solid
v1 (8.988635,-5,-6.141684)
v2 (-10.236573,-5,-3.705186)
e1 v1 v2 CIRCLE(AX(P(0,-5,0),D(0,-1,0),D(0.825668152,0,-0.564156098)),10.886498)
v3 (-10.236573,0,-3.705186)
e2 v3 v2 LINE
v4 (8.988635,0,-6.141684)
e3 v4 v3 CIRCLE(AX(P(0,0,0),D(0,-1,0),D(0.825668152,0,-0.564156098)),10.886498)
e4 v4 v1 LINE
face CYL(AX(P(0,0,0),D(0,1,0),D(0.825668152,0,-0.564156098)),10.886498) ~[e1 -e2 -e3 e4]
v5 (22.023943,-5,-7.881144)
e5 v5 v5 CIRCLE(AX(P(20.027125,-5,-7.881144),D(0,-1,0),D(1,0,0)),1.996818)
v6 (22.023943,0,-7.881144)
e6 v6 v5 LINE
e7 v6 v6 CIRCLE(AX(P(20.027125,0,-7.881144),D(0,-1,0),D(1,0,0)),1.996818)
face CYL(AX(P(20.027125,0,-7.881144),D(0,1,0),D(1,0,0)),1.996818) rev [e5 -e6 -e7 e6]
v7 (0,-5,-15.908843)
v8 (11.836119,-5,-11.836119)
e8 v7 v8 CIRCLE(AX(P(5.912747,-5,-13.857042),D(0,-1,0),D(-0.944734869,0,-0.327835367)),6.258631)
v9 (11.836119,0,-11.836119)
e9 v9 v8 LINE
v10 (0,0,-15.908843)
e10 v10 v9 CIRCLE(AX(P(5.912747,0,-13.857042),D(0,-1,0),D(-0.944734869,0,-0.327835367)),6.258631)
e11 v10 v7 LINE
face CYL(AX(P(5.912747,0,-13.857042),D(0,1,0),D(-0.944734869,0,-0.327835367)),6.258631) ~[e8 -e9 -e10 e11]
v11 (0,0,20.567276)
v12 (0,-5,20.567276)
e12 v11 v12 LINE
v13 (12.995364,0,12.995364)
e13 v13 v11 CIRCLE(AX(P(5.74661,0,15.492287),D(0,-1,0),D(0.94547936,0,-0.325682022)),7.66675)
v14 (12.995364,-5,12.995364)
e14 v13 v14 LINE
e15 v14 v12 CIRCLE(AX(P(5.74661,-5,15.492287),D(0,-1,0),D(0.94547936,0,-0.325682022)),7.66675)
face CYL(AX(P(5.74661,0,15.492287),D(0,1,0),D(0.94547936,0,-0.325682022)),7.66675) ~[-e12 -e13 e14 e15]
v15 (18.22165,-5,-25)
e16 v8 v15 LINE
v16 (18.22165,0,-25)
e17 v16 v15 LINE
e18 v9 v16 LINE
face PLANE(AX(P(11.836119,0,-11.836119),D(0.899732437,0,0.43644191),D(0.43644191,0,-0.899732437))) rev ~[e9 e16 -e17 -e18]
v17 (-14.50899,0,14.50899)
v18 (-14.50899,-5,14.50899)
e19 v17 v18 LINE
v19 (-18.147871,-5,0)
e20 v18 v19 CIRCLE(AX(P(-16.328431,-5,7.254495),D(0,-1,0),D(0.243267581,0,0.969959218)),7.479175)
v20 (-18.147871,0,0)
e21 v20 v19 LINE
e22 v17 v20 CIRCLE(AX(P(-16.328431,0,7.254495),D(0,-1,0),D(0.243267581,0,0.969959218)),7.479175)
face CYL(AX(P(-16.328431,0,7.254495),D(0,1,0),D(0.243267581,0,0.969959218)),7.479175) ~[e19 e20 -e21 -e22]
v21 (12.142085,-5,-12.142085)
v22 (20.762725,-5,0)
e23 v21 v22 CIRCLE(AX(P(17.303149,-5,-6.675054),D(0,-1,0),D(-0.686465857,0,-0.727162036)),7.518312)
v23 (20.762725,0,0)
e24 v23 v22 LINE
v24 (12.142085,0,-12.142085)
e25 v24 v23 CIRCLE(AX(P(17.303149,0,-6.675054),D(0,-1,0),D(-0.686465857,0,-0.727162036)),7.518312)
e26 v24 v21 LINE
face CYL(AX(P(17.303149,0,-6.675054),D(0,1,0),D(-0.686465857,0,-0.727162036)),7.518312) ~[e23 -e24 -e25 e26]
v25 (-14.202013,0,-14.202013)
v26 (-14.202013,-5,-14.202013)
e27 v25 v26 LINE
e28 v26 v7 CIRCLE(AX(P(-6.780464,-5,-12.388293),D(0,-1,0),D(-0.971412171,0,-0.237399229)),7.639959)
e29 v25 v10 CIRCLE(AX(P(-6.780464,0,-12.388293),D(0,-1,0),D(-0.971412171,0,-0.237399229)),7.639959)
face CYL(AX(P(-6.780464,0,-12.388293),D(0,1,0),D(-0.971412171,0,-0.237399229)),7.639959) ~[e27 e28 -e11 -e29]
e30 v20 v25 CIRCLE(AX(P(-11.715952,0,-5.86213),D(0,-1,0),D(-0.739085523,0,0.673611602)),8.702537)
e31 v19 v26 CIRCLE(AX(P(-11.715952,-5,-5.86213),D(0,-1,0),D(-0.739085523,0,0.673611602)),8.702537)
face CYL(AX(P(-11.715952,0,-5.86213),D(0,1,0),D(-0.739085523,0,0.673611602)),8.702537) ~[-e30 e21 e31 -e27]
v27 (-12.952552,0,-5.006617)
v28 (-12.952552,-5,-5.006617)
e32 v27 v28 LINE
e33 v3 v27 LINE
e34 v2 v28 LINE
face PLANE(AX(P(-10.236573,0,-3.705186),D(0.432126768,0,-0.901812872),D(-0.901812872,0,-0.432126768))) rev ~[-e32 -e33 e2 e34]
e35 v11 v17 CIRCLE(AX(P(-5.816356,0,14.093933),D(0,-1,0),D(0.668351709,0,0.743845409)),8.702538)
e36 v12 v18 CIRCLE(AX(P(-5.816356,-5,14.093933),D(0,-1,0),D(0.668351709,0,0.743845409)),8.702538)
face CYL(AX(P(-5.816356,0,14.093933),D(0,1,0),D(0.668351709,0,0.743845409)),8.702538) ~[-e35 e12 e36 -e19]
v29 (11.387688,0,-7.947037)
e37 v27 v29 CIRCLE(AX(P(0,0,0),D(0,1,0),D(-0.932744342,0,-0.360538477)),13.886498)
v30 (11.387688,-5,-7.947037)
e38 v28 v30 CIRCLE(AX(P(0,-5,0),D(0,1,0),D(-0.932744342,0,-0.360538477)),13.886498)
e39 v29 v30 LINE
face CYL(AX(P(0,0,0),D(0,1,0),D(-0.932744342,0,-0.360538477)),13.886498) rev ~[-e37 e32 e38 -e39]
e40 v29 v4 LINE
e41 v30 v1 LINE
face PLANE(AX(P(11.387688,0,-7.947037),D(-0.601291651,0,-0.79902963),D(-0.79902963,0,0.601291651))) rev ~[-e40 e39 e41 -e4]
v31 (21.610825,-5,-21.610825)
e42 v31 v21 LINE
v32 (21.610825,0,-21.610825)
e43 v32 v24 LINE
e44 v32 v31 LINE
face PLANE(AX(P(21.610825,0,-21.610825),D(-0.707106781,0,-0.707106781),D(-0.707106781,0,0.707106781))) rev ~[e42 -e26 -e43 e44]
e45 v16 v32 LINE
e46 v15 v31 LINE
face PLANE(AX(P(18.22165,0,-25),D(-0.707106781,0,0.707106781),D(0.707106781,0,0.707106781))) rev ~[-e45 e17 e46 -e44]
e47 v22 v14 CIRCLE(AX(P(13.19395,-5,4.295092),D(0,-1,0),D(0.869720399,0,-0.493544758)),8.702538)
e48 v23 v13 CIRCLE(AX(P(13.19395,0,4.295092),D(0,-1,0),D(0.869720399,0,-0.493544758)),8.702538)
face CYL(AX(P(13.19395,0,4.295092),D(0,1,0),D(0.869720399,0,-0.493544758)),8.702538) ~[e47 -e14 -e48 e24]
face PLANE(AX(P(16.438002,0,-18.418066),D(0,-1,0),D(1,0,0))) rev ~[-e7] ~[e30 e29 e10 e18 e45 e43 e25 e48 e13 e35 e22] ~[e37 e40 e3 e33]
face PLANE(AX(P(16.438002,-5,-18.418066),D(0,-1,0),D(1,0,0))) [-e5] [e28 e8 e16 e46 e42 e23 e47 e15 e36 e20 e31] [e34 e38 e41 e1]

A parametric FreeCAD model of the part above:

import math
import FreeCAD as App
import Part
import Sketcher
from FreeCAD import Vector
Q = App.Units.Quantity

doc = App.newDocument("Part")
body = doc.addObject("PartDesign::Body", "Body")

# Sketch on XZ plane
sketch1 = body.newObject("Sketcher::SketchObject", "Sketch")
sketch1.AttachmentSupport = (doc.getObject("XZ_Plane"), [""])
sketch1.MapMode = "FlatFace"
sketch1.addGeometry(Part.LineSegment(Vector(11.836119, -11.836119, 0), Vector(18.22165, -25, 0)), False)
sketch1.addGeometry(Part.LineSegment(Vector(18.22165, -25, 0), Vector(21.610825, -21.610825, 0)), False)
sketch1.addGeometry(Part.LineSegment(Vector(21.610825, -21.610825, 0), Vector(12.142085, -12.142085, 0)), False)
sketch1.addGeometry(Part.ArcOfCircle(Part.Circle(Vector(17.303149, -6.675054, 0), Vector(0, 0, 1), 7.518312), math.radians(-133.350998), math.radians(62.603002)), False)
sketch1.addGeometry(Part.ArcOfCircle(Part.Circle(Vector(13.19395, 4.295092, 0), Vector(0, 0, 1), 8.702538), math.radians(-29.573836), math.radians(91.307565)), False)
sketch1.addGeometry(Part.ArcOfCircle(Part.Circle(Vector(5.74661, 15.492287, 0), Vector(0, 0, 1), 7.66675), math.radians(-19.0069), math.radians(138.551393)), False)
sketch1.addGeometry(Part.ArcOfCircle(Part.Circle(Vector(-5.816356, 14.093933, 0), Vector(0, 0, 1), 8.702538), math.radians(48.060024), math.radians(177.266313)), False)
sketch1.addGeometry(Part.ArcOfCircle(Part.Circle(Vector(-16.328431, 7.254495, 0), Vector(0, 0, 1), 7.479175), math.radians(75.920524), math.radians(255.920529)), False)
sketch1.addGeometry(Part.ArcOfCircle(Part.Circle(Vector(-11.715952, -5.86213, 0), Vector(0, 0, 1), 8.702537), math.radians(137.653574), math.radians(253.401048)), False)
sketch1.addGeometry(Part.ArcOfCircle(Part.Circle(Vector(-6.780464, -12.388293, 0), Vector(0, 0, 1), 7.639959), math.radians(-166.266909), math.radians(-27.439227)), False)
sketch1.addGeometry(Part.ArcOfCircle(Part.Circle(Vector(5.912747, -13.857042, 0), Vector(0, 0, 1), 6.258631), math.radians(-160.862556), math.radians(18.838505)), False)
sketch1.addGeometry(Part.ArcOfCircle(Part.Circle(Vector(0, 0, 0), Vector(0, 0, 1), 10.886498), math.radians(-34.34371), math.radians(199.898013)), False)
sketch1.addGeometry(Part.LineSegment(Vector(-10.236573, -3.705186, 0), Vector(-12.952552, -5.006617, 0)), False)
sketch1.addGeometry(Part.ArcOfCircle(Part.Circle(Vector(0, 0, 0), Vector(0, 0, 1), 13.886498), math.radians(-34.909732), math.radians(201.133269)), False)
sketch1.addGeometry(Part.LineSegment(Vector(11.387688, -7.947037, 0), Vector(8.988635, -6.141684, 0)), False)
sketch1.addGeometry(Part.Circle(Vector(20.027125, -7.881144, 0), Vector(0, 0, 1), 1.996818), False)
sketch1.addConstraint(Sketcher.Constraint("Coincident", 0, 2, 1, 1))
sketch1.addConstraint(Sketcher.Constraint("Coincident", 1, 2, 2, 1))
sketch1.addConstraint(Sketcher.Constraint("Coincident", 2, 2, 3, 1))
sketch1.addConstraint(Sketcher.Constraint("Coincident", 3, 2, 4, 1))
sketch1.addConstraint(Sketcher.Constraint("Coincident", 4, 2, 5, 1))
sketch1.addConstraint(Sketcher.Constraint("Coincident", 5, 2, 6, 1))
sketch1.addConstraint(Sketcher.Constraint("Coincident", 6, 2, 7, 1))
sketch1.addConstraint(Sketcher.Constraint("Coincident", 7, 2, 8, 1))
sketch1.addConstraint(Sketcher.Constraint("Coincident", 8, 2, 9, 1))
sketch1.addConstraint(Sketcher.Constraint("Coincident", 9, 2, 10, 1))
sketch1.addConstraint(Sketcher.Constraint("Coincident", 10, 2, 0, 1))
sketch1.addConstraint(Sketcher.Constraint("Coincident", 11, 2, 12, 1))
sketch1.addConstraint(Sketcher.Constraint("Coincident", 12, 2, 13, 2))
sketch1.addConstraint(Sketcher.Constraint("Coincident", 13, 1, 14, 1))
sketch1.addConstraint(Sketcher.Constraint("Coincident", 14, 2, 11, 1))
sketch1.addConstraint(Sketcher.Constraint("Coincident", 11, 3, -1, 1))
sketch1.addConstraint(Sketcher.Constraint("Coincident", 13, 3, -1, 1))
sketch1.addConstraint(Sketcher.Constraint("Equal", 4, 6))
sketch1.addConstraint(Sketcher.Constraint("Equal", 6, 8))
sketch1.addConstraint(Sketcher.Constraint("PointOnObject", 3, 2, -1))
sketch1.addConstraint(Sketcher.Constraint("PointOnObject", 5, 2, -2))
sketch1.addConstraint(Sketcher.Constraint("PointOnObject", 7, 2, -1))
sketch1.addConstraint(Sketcher.Constraint("PointOnObject", 9, 2, -2))
sketch1.addConstraint(Sketcher.Constraint("Perpendicular", 1, 2))
sketch1.addConstraint(Sketcher.Constraint("Angle", 1, Q("45 deg")))
sketch1.addConstraint(Sketcher.Constraint("DistanceY", 0, 2, -1, 1, Q("25 mm")))
sketch1.addConstraint(Sketcher.Constraint("Radius", 3, Q("7.518312 mm")))
sketch1.addConstraint(Sketcher.Constraint("Radius", 4, Q("8.702538 mm")))
sketch1.addConstraint(Sketcher.Constraint("Radius", 5, Q("7.66675 mm")))
sketch1.addConstraint(Sketcher.Constraint("Radius", 9, Q("7.639959 mm")))
sketch1.addConstraint(Sketcher.Constraint("Radius", 10, Q("6.258631 mm")))
sketch1.addConstraint(Sketcher.Constraint("Diameter", 15, Q("3.993636 mm")))
sketch1.addConstraint(Sketcher.Constraint("Radius", 7, Q("7.479175 mm")))
sketch1.addConstraint(Sketcher.Constraint("Radius", 11, Q("10.886498 mm")))
sketch1.addConstraint(Sketcher.Constraint("Radius", 13, Q("13.886498 mm")))
sketch1.addConstraint(Sketcher.Constraint("DistanceX", 4, 3, 3, 3, Q("4.109199 mm")))
sketch1.addConstraint(Sketcher.Constraint("DistanceX", 8, 3, 3, 3, Q("29.019101 mm")))
sketch1.addConstraint(Sketcher.Constraint("DistanceX", 8, 3, 10, 3, Q("17.628699 mm")))
sketch1.addConstraint(Sketcher.Constraint("DistanceY", 10, 3, 15, 3, Q("5.975898 mm")))
sketch1.addConstraint(Sketcher.Constraint("DistanceX", 3, 3, 0, 2, Q("0.918501 mm")))
sketch1.addConstraint(Sketcher.Constraint("DistanceX", 15, 3, 1, 2, Q("1.5837 mm")))
sketch1.addConstraint(Sketcher.Constraint("DistanceX", 15, 3, 3, 2, Q("0.7356 mm")))
sketch1.addConstraint(Sketcher.Constraint("DistanceX", 6, 2, 5, 3, Q("20.2556 mm")))
sketch1.addConstraint(Sketcher.Constraint("DistanceY", 9, 2, 10, 3, Q("2.051801 mm")))
sketch1.addConstraint(Sketcher.Constraint("DistanceX", 12, 2, 8, 3, Q("1.2366 mm")))
sketch1.addConstraint(Sketcher.Constraint("DistanceY", 2, 2, 14, 2, Q("6.000401 mm")))
sketch1.addConstraint(Sketcher.Constraint("Distance", 2, Q("13.390821 mm")))
sketch1.addConstraint(Sketcher.Constraint("Distance", 14, Q("3.002458 mm")))
sketch1.addConstraint(Sketcher.Constraint("DistanceX", -1, 1, 5, 3, Q("5.74661 mm")))
sketch1.addConstraint(Sketcher.Constraint("DistanceX", 7, 3, -1, 1, Q("16.328431 mm")))
sketch1.addConstraint(Sketcher.Constraint("DistanceY", 8, 3, -1, 1, Q("5.86213 mm")))
sketch1.addConstraint(Sketcher.Constraint("DistanceX", -1, 1, 10, 2, Q("11.836119 mm")))
sketch1.addConstraint(Sketcher.Constraint("DistanceY", 10, 2, -1, 1, Q("11.836119 mm")))
sketch1.addConstraint(Sketcher.Constraint("DistanceY", 3, 3, 5, 3, Q("22.167341 mm")))
sketch1.addConstraint(Sketcher.Constraint("DistanceY", 9, 3, 3, 3, Q("5.713239 mm")))
sketch1.addConstraint(Sketcher.Constraint("DistanceX", 8, 3, 11, 2, Q("1.479379 mm")))
pad1 = body.newObject("PartDesign::Pad", "Pad")
pad1.Profile = sketch1
pad1.Length = 5

doc.recompute()
